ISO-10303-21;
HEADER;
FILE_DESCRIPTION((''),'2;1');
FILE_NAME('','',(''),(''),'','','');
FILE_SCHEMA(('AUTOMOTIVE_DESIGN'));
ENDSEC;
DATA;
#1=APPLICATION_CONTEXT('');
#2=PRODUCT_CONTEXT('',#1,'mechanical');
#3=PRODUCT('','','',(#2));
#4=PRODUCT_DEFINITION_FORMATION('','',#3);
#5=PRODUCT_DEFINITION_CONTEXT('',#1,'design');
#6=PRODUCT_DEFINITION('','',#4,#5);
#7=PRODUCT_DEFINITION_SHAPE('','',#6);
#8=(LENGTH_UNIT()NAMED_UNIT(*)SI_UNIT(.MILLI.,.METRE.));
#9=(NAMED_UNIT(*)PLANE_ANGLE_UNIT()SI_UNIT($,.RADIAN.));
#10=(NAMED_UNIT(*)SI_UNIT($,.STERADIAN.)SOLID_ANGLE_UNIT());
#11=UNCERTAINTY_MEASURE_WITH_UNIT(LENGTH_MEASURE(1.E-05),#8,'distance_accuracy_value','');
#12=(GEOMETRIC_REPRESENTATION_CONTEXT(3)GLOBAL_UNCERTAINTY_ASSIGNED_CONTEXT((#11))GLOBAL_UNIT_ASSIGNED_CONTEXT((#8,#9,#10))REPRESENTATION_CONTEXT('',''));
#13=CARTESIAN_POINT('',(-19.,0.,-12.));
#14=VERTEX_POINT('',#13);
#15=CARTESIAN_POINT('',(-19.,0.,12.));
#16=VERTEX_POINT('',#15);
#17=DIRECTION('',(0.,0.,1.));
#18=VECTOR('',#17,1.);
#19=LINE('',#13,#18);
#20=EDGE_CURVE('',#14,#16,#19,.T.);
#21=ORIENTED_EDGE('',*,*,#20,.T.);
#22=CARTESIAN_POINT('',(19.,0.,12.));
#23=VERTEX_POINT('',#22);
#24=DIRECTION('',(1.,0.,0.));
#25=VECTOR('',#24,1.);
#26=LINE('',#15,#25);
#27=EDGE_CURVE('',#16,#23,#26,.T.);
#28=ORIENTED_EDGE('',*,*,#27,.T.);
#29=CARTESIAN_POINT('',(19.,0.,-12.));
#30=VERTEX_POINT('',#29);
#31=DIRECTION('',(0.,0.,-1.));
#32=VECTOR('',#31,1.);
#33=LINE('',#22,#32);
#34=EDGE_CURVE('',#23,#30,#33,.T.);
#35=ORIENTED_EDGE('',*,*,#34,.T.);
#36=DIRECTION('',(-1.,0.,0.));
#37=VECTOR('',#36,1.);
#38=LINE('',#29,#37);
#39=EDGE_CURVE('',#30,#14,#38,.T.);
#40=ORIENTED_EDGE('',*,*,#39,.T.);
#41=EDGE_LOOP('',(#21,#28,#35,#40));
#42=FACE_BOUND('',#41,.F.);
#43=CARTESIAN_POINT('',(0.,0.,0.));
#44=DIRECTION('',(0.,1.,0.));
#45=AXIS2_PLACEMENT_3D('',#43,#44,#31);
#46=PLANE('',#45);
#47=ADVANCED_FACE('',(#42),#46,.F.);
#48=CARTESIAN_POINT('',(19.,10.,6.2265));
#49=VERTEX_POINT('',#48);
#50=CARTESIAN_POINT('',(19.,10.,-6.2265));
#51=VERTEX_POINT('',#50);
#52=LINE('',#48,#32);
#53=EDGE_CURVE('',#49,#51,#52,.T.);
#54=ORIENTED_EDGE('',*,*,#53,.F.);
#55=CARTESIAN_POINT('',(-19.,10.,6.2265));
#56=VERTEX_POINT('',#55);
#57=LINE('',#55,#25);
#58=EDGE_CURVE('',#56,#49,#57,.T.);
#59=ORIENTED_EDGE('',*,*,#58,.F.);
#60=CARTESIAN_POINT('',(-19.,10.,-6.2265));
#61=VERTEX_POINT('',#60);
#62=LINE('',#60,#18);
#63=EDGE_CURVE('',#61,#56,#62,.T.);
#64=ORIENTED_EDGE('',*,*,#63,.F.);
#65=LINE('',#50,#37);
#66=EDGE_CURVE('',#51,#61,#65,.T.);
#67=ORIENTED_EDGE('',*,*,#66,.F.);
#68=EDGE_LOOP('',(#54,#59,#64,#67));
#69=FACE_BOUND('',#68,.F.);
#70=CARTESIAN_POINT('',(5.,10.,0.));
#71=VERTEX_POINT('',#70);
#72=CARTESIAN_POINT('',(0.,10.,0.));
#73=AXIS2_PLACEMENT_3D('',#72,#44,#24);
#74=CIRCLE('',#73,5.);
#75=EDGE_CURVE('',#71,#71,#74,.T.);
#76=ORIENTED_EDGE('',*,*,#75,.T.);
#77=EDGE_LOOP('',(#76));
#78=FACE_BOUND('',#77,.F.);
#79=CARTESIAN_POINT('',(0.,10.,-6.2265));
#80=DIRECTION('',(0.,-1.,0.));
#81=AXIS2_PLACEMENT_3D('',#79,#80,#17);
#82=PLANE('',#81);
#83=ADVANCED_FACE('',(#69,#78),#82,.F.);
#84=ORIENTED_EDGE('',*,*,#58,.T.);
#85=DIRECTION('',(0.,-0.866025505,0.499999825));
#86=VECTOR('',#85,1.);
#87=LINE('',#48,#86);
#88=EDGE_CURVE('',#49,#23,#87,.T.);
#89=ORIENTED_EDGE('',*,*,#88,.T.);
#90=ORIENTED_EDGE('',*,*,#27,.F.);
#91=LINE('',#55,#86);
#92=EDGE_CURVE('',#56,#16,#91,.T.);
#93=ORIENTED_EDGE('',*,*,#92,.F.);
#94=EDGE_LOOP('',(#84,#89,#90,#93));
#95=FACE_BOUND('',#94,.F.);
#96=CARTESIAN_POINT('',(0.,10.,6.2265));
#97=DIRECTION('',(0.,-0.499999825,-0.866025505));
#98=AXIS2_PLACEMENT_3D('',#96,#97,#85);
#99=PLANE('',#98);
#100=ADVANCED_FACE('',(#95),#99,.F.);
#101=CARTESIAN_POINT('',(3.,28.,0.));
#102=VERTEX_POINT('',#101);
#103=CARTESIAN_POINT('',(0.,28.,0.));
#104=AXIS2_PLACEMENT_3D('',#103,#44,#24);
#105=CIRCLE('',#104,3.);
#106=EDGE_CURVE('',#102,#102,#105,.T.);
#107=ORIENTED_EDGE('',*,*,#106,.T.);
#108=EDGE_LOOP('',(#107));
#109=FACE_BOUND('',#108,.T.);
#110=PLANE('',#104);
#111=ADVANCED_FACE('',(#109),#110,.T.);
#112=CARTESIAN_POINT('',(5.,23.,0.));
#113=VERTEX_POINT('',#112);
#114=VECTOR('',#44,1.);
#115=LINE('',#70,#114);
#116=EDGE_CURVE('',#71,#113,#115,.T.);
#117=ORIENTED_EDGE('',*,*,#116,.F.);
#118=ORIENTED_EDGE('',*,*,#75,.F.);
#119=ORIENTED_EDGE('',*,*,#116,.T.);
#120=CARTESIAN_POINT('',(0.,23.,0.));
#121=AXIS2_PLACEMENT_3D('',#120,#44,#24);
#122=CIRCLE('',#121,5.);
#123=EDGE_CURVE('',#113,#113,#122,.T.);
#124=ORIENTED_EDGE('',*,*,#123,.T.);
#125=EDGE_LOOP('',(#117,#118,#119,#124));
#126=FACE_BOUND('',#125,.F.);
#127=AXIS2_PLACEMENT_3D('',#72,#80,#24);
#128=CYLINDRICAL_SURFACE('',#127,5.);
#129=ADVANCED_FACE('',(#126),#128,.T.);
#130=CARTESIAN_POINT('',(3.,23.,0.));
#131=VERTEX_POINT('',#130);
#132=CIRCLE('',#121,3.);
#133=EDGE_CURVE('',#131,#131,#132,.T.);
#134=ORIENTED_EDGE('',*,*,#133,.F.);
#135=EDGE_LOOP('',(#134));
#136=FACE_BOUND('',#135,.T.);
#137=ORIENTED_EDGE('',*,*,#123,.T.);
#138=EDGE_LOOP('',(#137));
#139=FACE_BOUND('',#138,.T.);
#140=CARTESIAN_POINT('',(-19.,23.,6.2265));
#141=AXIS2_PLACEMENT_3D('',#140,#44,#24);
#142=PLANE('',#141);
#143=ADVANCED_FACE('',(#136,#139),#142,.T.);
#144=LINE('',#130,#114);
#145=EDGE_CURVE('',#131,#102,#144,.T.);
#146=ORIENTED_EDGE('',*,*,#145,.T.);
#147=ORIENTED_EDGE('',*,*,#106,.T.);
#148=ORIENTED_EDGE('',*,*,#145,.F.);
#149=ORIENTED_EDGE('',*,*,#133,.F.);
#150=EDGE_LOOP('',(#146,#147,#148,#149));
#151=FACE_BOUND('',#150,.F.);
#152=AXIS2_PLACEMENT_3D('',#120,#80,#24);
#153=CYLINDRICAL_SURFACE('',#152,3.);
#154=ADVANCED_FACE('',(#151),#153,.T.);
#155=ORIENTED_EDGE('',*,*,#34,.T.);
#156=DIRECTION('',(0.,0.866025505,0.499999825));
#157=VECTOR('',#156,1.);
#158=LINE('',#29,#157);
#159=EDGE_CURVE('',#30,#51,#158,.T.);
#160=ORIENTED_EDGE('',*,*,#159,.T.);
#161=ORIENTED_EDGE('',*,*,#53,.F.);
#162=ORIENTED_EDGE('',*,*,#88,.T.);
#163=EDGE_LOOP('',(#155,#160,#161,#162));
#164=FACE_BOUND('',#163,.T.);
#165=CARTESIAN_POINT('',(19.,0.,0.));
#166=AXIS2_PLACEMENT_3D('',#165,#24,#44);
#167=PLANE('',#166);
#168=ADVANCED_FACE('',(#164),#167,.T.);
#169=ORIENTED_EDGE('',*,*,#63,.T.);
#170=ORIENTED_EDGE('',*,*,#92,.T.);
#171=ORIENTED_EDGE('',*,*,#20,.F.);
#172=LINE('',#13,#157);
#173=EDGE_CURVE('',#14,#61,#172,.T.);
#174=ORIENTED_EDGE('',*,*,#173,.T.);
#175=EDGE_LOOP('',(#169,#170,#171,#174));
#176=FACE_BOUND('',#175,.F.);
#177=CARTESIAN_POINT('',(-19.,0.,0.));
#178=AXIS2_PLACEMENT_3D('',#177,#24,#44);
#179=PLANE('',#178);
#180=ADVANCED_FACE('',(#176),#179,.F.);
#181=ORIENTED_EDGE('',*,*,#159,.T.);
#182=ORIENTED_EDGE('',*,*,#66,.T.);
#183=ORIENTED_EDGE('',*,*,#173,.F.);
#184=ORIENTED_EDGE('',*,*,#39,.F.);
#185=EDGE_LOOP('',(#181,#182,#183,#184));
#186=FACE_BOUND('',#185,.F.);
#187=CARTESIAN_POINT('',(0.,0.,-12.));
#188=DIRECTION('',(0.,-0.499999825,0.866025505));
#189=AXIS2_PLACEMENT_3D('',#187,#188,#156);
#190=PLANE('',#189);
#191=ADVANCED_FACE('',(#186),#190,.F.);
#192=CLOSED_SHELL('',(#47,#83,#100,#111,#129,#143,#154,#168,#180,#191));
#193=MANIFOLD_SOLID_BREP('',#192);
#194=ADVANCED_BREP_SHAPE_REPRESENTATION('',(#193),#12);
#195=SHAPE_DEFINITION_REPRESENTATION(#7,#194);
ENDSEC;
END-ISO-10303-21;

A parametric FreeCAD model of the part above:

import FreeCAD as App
import Part
import Sketcher
from FreeCAD import Vector
Q = App.Units.Quantity

doc = App.newDocument("Part")
body = doc.addObject("PartDesign::Body", "Body")

sketch1 = body.newObject("Sketcher::SketchObject", "Sketch")
sketch1.AttachmentSupport = (doc.getObject("YZ_Plane"), [""])
sketch1.MapMode = "FlatFace"
sketch1.addGeometry([
    Part.LineSegment(Vector(10, -6, 0), Vector(10, 6, 0)),
    Part.LineSegment(Vector(10, 6, 0), Vector(0, 12, 0)),
    Part.LineSegment(Vector(0, 12, 0), Vector(0, -12, 0)),
    Part.LineSegment(Vector(0, -12, 0), Vector(10, -6, 0)),
], False)
sketch1.addConstraint([
    Sketcher.Constraint("Coincident", 0, 2, 1, 1),
    Sketcher.Constraint("Coincident", 1, 2, 2, 1),
    Sketcher.Constraint("Coincident", 2, 2, 3, 1),
    Sketcher.Constraint("Coincident", 3, 2, 0, 1),
    Sketcher.Constraint("Vertical", 0),
    Sketcher.Constraint("Vertical", 2),
    Sketcher.Constraint("Symmetric", 1, 2, 2, 2, -1, 1),
    Sketcher.Constraint("Equal", 1, 3),
    Sketcher.Constraint("DistanceX", -1, 1, 0, 2, 10.0),
    Sketcher.Constraint("DistanceY", -1, 1, 1, 2, 12.0),
    Sketcher.Constraint("Angle", 1, Q("150 deg")),
])
pad1 = body.newObject("PartDesign::Pad", "Pad")
pad1.Profile = sketch1
pad1.Length = 38
pad1.Midplane = True

sketch2 = body.newObject("Sketcher::SketchObject", "Sketch001")
sketch2.AttachmentSupport = (doc.getObject("XZ_Plane"), [""])
sketch2.MapMode = "FlatFace"
sketch2.AttachmentOffset = App.Placement(Vector(0, 0, -10), App.Rotation())
sketch2.addGeometry(Part.Circle(Vector(0, 0, 0), Vector(0, 0, 1), 5), False)
sketch2.addConstraint([
    Sketcher.Constraint("Coincident", 0, 3, -1, 1),
    Sketcher.Constraint("Diameter", 0, 10.0),
])
pad2 = body.newObject("PartDesign::Pad", "Pad001")
pad2.Profile = sketch2
pad2.Length = 13
pad2.Reversed = True

sketch3 = body.newObject("Sketcher::SketchObject", "Sketch002")
sketch3.AttachmentSupport = (doc.getObject("XZ_Plane"), [""])
sketch3.MapMode = "FlatFace"
sketch3.AttachmentOffset = App.Placement(Vector(0, 0, -23), App.Rotation())
sketch3.addGeometry(Part.Circle(Vector(0, 0, 0), Vector(0, 0, 1), 3), False)
sketch3.addConstraint([
    Sketcher.Constraint("Coincident", 0, 3, -1, 1),
    Sketcher.Constraint("Diameter", 0, 6.0),
])
pad3 = body.newObject("PartDesign::Pad", "Pad002")
pad3.Profile = sketch3
pad3.Length = 5
pad3.Reversed = True

doc.recompute()
